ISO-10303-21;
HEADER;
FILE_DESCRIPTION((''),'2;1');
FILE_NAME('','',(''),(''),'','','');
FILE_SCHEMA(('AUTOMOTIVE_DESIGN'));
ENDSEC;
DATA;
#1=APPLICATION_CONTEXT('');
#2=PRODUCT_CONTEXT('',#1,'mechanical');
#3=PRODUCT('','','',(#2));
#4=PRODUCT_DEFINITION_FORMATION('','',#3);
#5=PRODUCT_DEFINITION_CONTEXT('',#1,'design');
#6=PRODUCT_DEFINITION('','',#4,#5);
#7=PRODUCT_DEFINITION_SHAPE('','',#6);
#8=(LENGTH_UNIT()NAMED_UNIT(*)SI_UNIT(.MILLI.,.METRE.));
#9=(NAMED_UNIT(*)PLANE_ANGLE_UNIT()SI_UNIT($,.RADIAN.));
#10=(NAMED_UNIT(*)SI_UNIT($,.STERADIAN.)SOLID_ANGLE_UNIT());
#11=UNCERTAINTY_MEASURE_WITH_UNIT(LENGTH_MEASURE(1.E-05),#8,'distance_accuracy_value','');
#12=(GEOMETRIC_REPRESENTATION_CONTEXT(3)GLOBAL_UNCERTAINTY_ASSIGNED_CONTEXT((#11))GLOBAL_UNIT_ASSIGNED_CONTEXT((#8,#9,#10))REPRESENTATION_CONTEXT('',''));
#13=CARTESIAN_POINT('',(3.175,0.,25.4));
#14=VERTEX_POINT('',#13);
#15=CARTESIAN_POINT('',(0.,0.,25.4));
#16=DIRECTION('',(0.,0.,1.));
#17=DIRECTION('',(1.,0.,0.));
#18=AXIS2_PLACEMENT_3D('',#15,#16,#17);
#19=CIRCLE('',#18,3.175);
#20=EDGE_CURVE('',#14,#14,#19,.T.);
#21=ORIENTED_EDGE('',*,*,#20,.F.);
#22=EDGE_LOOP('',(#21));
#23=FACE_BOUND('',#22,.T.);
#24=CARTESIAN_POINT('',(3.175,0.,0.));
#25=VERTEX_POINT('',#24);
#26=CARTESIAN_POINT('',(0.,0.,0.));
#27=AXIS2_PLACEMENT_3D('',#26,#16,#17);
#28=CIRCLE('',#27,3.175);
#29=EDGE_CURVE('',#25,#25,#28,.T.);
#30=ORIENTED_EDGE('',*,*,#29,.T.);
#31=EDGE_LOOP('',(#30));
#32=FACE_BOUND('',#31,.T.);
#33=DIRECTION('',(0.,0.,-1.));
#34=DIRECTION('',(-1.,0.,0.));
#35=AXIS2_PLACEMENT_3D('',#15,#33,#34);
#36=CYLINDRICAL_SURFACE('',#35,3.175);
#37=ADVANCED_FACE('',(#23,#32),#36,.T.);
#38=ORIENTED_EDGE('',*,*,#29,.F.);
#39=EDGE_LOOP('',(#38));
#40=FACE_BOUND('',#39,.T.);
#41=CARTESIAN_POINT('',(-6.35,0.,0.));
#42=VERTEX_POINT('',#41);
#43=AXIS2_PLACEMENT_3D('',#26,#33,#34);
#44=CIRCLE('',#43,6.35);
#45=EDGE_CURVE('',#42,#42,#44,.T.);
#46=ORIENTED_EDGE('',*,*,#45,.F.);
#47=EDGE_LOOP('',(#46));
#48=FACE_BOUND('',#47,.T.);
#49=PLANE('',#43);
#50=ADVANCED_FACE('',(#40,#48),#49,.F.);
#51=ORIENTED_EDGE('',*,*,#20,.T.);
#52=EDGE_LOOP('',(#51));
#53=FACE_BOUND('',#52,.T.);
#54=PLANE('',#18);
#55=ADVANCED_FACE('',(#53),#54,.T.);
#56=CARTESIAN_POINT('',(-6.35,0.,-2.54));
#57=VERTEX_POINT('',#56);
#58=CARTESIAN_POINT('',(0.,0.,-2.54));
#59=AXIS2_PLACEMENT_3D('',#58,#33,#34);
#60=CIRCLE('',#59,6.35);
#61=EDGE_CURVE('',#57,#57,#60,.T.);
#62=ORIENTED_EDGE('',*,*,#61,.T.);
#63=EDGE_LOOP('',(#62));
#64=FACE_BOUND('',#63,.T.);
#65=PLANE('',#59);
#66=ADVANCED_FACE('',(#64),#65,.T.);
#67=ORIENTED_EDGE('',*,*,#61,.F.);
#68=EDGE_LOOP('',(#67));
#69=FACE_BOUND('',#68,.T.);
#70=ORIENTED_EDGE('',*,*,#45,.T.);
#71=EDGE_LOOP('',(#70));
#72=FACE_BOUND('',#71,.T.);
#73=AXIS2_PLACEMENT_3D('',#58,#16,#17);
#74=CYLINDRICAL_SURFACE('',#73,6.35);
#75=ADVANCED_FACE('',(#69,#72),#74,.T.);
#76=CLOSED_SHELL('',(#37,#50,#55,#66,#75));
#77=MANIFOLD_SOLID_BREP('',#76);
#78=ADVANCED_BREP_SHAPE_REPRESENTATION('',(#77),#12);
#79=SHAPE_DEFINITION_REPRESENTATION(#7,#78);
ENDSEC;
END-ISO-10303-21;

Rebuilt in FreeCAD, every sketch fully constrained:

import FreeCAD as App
import Part
import Sketcher

V = App.Vector
Q = App.Units.Quantity

doc = App.newDocument("Part")
params = doc.addObject("Spreadsheet::Sheet", "Params")
for row, (alias, value) in enumerate([
    ("sketch1_diameter", "0.25 in"),
    ("pad1_length", "1 in"),
    ("sketch2_diameter", "0.5 in"),
    ("pad2_length", "0.1 in"),
], start=1):
    params.set(f"A{row}", alias)
    params.set(f"B{row}", "=" + value)
    params.setAlias(f"B{row}", alias)

body = doc.addObject("PartDesign::Body", "Body")

# Sketch on XY plane
sketch1 = body.newObject("Sketcher::SketchObject", "Sketch")
sketch1.AttachmentSupport = (doc.getObject("XY_Plane"), [""])
sketch1.MapMode = "FlatFace"
sketch1.addGeometry(Part.Circle(V(0, 0, 0), V(0, 0, 1), 3.175), False)
sketch1.addConstraint([
    Sketcher.Constraint("Coincident", 0, 3, -1, 1),
    Sketcher.Constraint("Diameter", 0, Q("0.25 in")),
])
sketch1.setExpression("Constraints[1]", "Params.sketch1_diameter")
pad1 = body.newObject("PartDesign::Pad", "Pad")
pad1.Profile = sketch1
pad1.setExpression("Length", "Params.pad1_length")

# Sketch on XY plane
sketch2 = body.newObject("Sketcher::SketchObject", "Sketch001")
sketch2.AttachmentSupport = (doc.getObject("XY_Plane"), [""])
sketch2.MapMode = "FlatFace"
sketch2.addGeometry(Part.Circle(V(0, 0, 0), V(0, 0, 1), 6.35), False)
sketch2.addConstraint([
    Sketcher.Constraint("Coincident", 0, 3, -1, 1),
    Sketcher.Constraint("Diameter", 0, Q("0.5 in")),
])
sketch2.setExpression("Constraints[1]", "Params.sketch2_diameter")
pad2 = body.newObject("PartDesign::Pad", "Pad001")
pad2.Profile = sketch2
pad2.setExpression("Length", "Params.pad2_length")
pad2.Reversed = True

doc.recompute()
